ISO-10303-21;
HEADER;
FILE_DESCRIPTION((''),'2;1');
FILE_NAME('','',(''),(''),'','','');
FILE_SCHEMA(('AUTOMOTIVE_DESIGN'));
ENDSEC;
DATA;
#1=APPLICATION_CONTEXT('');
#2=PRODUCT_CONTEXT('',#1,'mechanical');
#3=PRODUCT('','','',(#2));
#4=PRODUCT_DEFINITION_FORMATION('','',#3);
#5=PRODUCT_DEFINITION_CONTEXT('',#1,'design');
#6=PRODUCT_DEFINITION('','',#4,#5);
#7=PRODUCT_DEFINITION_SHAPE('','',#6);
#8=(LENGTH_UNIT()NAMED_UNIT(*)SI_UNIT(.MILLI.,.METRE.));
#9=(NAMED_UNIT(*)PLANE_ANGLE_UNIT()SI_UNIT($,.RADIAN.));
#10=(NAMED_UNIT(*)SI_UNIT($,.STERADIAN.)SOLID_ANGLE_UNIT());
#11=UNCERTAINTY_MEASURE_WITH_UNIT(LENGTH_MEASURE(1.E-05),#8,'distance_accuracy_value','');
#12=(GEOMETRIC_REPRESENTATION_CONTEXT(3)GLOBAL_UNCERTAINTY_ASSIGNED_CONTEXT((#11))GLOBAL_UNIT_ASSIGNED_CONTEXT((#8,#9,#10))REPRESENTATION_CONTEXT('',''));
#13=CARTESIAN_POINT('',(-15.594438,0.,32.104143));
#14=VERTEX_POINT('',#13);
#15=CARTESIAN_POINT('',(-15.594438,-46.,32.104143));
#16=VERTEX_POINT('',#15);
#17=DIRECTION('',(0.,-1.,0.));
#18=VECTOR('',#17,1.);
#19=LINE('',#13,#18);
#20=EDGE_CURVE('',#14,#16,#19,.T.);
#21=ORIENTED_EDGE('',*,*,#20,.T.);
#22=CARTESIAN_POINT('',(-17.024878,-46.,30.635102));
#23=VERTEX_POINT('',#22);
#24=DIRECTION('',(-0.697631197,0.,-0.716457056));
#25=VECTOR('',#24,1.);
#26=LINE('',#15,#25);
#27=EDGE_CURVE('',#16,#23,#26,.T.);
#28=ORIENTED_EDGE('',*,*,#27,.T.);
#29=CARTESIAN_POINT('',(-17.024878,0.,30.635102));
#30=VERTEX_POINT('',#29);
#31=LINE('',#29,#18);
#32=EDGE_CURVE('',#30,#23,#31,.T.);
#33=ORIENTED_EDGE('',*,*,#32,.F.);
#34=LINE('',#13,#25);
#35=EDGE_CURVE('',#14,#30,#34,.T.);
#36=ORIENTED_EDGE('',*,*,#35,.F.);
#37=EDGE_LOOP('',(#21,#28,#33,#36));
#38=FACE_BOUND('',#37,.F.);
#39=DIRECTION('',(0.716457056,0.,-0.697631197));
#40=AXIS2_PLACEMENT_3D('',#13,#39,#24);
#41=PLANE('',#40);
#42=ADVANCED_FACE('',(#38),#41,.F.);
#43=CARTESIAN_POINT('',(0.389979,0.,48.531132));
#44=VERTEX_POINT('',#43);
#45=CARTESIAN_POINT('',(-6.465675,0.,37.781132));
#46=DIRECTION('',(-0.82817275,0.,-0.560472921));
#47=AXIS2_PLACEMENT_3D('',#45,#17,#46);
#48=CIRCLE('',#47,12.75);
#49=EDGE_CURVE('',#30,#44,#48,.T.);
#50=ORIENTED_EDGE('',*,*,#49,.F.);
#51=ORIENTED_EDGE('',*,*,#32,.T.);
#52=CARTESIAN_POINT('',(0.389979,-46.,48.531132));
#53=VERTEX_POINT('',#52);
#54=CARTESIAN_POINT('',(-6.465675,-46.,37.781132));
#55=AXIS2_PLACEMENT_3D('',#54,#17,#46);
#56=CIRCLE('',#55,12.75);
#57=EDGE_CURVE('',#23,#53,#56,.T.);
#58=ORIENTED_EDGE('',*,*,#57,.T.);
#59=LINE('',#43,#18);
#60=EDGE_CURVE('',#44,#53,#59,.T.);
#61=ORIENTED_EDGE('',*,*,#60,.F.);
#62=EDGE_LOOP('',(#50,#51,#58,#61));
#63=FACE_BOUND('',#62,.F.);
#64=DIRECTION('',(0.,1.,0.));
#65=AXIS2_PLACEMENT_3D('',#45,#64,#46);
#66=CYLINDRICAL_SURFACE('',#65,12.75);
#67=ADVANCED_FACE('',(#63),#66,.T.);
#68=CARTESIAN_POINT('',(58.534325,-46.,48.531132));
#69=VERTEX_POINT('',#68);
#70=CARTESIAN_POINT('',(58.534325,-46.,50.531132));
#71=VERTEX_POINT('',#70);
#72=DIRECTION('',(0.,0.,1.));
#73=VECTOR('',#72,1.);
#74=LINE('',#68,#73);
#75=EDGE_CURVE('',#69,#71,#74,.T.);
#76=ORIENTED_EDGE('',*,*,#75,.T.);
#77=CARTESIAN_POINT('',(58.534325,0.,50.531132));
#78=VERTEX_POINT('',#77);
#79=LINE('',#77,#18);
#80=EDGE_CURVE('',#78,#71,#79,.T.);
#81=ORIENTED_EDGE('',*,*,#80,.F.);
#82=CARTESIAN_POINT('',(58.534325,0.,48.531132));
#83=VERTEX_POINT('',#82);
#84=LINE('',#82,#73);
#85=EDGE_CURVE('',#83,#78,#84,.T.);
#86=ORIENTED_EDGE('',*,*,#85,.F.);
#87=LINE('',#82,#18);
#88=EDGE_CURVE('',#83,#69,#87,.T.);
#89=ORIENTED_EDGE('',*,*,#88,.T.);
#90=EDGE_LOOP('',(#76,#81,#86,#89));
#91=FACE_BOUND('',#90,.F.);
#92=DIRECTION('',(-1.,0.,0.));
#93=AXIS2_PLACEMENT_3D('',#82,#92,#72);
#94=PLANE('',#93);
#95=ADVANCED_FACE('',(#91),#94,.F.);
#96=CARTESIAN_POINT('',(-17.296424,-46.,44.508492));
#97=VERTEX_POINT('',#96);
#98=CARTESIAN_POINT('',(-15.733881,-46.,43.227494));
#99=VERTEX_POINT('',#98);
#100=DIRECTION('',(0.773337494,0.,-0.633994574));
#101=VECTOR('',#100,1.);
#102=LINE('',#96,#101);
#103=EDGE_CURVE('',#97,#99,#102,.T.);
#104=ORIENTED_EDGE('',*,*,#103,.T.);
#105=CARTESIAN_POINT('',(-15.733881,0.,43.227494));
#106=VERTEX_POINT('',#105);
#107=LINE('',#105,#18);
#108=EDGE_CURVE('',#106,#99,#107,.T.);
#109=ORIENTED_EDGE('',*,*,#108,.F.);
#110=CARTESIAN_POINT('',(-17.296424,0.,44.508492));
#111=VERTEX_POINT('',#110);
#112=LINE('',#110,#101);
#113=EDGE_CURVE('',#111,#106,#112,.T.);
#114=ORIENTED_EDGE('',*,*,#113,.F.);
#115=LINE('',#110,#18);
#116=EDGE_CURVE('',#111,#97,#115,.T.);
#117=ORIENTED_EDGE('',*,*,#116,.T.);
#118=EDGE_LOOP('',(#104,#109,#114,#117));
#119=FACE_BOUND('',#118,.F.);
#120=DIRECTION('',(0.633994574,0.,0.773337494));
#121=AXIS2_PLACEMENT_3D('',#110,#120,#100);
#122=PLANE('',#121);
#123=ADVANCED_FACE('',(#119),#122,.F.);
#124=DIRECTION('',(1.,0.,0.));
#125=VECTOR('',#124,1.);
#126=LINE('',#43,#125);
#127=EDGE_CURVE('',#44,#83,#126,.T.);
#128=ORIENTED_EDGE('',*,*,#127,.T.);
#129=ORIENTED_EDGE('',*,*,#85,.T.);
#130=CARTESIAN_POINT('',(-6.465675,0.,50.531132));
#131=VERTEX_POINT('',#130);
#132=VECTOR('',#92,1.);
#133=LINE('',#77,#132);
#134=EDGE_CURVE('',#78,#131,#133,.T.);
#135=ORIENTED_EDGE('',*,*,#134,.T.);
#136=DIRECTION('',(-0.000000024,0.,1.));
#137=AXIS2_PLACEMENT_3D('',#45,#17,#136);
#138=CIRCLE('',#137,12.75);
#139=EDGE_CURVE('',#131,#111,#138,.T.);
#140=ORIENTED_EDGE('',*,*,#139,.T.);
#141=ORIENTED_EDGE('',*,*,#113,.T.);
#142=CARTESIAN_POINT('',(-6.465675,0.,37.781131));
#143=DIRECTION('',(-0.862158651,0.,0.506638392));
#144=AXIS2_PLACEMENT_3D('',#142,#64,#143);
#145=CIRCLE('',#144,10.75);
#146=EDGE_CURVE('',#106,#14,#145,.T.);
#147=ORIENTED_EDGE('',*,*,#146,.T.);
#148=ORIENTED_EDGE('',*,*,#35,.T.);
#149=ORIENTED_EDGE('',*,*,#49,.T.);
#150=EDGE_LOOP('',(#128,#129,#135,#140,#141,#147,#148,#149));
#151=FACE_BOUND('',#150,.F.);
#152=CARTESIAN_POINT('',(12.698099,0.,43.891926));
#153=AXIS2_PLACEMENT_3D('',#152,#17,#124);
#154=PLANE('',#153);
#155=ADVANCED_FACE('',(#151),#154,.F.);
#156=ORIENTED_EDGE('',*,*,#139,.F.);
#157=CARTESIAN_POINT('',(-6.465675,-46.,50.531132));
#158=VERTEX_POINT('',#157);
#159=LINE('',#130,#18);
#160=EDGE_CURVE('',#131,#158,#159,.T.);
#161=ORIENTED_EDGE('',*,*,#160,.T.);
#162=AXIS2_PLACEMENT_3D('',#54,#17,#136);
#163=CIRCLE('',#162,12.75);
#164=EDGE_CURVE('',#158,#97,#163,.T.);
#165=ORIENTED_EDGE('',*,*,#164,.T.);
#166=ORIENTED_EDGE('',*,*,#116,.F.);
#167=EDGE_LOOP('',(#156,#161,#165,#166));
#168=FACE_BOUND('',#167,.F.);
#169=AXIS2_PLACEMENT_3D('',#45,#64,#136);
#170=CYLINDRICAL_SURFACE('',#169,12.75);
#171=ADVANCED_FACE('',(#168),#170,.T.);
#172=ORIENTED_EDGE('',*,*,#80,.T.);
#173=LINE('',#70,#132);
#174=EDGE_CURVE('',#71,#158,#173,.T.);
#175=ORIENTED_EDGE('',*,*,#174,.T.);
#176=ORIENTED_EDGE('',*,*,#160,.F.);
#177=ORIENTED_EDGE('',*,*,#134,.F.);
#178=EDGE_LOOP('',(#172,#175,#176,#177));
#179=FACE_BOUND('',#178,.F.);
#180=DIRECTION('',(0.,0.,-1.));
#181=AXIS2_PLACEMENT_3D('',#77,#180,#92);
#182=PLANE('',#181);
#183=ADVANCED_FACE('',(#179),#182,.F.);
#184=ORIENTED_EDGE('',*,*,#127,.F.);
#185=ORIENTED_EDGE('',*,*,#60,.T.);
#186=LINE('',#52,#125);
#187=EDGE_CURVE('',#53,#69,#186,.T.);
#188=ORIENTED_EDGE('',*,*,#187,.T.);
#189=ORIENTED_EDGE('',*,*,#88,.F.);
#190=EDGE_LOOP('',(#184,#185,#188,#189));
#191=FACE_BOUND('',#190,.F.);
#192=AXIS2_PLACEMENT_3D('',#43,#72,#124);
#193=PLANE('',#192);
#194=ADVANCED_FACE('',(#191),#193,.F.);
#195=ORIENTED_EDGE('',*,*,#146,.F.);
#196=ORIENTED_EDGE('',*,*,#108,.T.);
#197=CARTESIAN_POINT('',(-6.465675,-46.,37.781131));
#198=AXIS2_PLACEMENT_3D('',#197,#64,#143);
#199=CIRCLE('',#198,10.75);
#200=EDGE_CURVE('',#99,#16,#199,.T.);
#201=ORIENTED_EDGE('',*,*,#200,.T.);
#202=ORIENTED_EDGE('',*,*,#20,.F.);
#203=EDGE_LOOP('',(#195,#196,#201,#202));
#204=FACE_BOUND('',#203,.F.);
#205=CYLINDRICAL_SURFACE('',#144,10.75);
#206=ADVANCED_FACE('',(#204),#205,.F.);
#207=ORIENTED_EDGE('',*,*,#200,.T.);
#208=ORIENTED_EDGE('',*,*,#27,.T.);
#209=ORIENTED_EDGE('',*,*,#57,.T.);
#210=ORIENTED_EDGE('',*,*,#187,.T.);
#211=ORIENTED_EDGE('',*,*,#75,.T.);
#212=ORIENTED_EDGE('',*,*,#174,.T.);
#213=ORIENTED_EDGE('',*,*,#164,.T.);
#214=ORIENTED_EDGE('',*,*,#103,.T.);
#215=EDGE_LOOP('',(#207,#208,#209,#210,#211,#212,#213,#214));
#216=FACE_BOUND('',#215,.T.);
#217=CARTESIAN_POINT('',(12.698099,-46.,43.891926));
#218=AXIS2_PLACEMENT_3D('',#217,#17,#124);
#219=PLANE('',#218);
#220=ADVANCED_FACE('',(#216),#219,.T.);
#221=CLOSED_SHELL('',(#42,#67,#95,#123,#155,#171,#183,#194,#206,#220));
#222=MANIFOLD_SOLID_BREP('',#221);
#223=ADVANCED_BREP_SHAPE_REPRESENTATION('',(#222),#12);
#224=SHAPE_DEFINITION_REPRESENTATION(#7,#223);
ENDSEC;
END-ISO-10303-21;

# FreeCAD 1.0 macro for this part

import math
import FreeCAD as App
import Part
import Sketcher
from FreeCAD import Vector

doc = App.newDocument("Part")
body = doc.addObject("PartDesign::Body", "Body")

# Sketch on XZ plane
sketch1 = body.newObject("Sketcher::SketchObject", "Sketch")
sketch1.AttachmentSupport = (doc.getObject("XZ_Plane"), [""])
sketch1.MapMode = "FlatFace"
sketch1.addGeometry(Part.ArcOfCircle(Part.Circle(Vector(-6.465675, 37.781131, 0), Vector(0, 0, 1), 10.75), math.radians(-148.123376), math.radians(149.559827)), False)
sketch1.addGeometry(Part.LineSegment(Vector(-15.594438, 32.104143, 0), Vector(-17.024878, 30.635102, 0)), False)
sketch1.addGeometry(Part.ArcOfCircle(Part.Circle(Vector(-6.465675, 37.781132, 0), Vector(0, 0, 1), 12.75), math.radians(-145.91149), math.radians(57.472905)), False)
sketch1.addGeometry(Part.LineSegment(Vector(0.389979, 48.531132, 0), Vector(58.534325, 48.531132, 0)), False)
sketch1.addGeometry(Part.LineSegment(Vector(58.534325, 48.531132, 0), Vector(58.534325, 50.531132, 0)), False)
sketch1.addGeometry(Part.LineSegment(Vector(58.534325, 50.531132, 0), Vector(-6.465675, 50.531132, 0)), False)
sketch1.addGeometry(Part.ArcOfCircle(Part.Circle(Vector(-6.465675, 37.781132, 0), Vector(0, 0, 1), 12.75), math.radians(90.000001), math.radians(148.154126)), False)
sketch1.addGeometry(Part.LineSegment(Vector(-17.296424, 44.508492, 0), Vector(-15.733881, 43.227494, 0)), False)
sketch1.addConstraint(Sketcher.Constraint("Coincident", 0, 1, 1, 1))
sketch1.addConstraint(Sketcher.Constraint("Coincident", 1, 2, 2, 1))
sketch1.addConstraint(Sketcher.Constraint("Coincident", 2, 2, 3, 1))
sketch1.addConstraint(Sketcher.Constraint("Coincident", 3, 2, 4, 1))
sketch1.addConstraint(Sketcher.Constraint("Coincident", 4, 2, 5, 1))
sketch1.addConstraint(Sketcher.Constraint("Tangent", 5, 2, 6, 1))
sketch1.addConstraint(Sketcher.Constraint("Coincident", 6, 2, 7, 1))
sketch1.addConstraint(Sketcher.Constraint("Coincident", 7, 2, 0, 2))
sketch1.addConstraint(Sketcher.Constraint("Horizontal", 3))
sketch1.addConstraint(Sketcher.Constraint("Vertical", 4))
sketch1.addConstraint(Sketcher.Constraint("Horizontal", 5))
sketch1.addConstraint(Sketcher.Constraint("Coincident", 2, 3, 0, 3))
sketch1.addConstraint(Sketcher.Constraint("Coincident", 6, 3, 0, 3))
sketch1.addConstraint(Sketcher.Constraint("Equal", 2, 6))
sketch1.addConstraint(Sketcher.Constraint("DistanceX", 5, 2, 5, 1, 65.0))
sketch1.addConstraint(Sketcher.Constraint("DistanceY", 4, 1, 4, 2, 2.0))
sketch1.addConstraint(Sketcher.Constraint("Radius", 0, 10.75))
sketch1.addConstraint(Sketcher.Constraint("Radius", 2, 12.75))
sketch1.addConstraint(Sketcher.Constraint("DistanceY", 7, 2, 6, 2, 1.280998))
sketch1.addConstraint(Sketcher.Constraint("DistanceY", -1, 1, 1, 2, 30.635102))
sketch1.addConstraint(Sketcher.Constraint("Distance", 7, 2.020519))
sketch1.addConstraint(Sketcher.Constraint("DistanceY", -1, 1, 0, 3, 37.781131))
sketch1.addConstraint(Sketcher.Constraint("DistanceX", 1, 2, -1, 1, 17.024878))
sketch1.addConstraint(Sketcher.Constraint("DistanceY", 0, 1, 0, 3, 5.676988))
pad1 = body.newObject("PartDesign::Pad", "Pad")
pad1.Profile = sketch1
pad1.Length = 46

doc.recompute()
